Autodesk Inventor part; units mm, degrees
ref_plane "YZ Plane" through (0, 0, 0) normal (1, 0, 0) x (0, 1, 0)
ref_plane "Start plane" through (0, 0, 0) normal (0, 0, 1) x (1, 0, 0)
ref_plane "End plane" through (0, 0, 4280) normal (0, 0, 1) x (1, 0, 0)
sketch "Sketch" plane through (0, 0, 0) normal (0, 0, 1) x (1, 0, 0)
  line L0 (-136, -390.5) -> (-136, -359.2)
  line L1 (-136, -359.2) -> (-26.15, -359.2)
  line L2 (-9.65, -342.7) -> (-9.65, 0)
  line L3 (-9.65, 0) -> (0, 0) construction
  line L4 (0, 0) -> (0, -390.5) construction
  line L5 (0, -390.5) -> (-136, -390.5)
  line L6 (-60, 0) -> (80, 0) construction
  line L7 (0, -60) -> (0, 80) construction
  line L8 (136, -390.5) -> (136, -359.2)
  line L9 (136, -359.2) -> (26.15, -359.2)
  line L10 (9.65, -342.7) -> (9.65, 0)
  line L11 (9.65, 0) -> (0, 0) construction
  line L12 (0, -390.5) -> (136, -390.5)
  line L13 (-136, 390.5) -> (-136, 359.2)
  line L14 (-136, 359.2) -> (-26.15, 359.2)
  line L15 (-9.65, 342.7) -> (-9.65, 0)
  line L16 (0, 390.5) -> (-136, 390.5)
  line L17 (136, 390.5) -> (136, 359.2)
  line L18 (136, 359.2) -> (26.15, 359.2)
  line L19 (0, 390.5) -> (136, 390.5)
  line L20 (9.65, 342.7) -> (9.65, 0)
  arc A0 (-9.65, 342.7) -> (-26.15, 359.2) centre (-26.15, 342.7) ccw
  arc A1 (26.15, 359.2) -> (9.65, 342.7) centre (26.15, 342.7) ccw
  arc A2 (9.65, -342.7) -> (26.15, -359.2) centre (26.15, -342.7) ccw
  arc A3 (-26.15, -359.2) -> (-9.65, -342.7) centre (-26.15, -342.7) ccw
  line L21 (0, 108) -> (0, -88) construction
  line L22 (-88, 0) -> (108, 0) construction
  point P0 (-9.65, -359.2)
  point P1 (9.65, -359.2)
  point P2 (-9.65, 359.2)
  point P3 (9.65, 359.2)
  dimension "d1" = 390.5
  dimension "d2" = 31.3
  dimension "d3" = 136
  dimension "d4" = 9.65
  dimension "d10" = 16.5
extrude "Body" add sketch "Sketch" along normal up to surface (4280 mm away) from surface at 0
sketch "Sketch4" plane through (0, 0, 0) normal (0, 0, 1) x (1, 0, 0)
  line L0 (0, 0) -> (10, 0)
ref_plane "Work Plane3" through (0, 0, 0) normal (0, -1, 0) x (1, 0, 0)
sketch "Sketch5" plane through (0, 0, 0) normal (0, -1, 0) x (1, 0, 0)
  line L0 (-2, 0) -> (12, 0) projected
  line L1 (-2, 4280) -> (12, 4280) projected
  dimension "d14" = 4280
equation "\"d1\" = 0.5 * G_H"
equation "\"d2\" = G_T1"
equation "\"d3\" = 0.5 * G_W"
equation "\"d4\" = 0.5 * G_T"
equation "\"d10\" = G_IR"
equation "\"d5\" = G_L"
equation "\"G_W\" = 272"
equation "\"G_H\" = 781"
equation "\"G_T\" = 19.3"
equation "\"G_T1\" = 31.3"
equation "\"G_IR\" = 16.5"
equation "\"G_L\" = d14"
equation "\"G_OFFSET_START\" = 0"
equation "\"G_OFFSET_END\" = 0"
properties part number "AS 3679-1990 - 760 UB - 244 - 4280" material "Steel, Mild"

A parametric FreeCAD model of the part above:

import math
import FreeCAD as App
import Part
import Sketcher
from FreeCAD import Vector

doc = App.newDocument("Part")
params = doc.addObject("Spreadsheet::Sheet", "Params")
for row, (alias, value) in enumerate([
    ("sketch1_radius", "16.5 mm"),
    ("sketch1_height", "31.3 mm"),
    ("pad1_length", "4280 mm"),
], start=1):
    params.set(f"A{row}", alias)
    params.set(f"B{row}", "=" + value)
    params.setAlias(f"B{row}", alias)

body = doc.addObject("PartDesign::Body", "Body")

sketch1 = doc.addObject("Sketcher::SketchObject", "Sketch")
body.addObject(sketch1)
sketch1.AttachmentSupport = (doc.XY_Plane, [""])
sketch1.MapMode = "FlatFace"
sketch1.addGeometry([
    Part.LineSegment(Vector(-136, -359, 0), Vector(-136, -390, 0)),
    Part.LineSegment(Vector(-136, -390, 0), Vector(136, -390, 0)),
    Part.LineSegment(Vector(136, -390, 0), Vector(136, -359, 0)),
    Part.LineSegment(Vector(136, -359, 0), Vector(26, -359, 0)),
    Part.ArcOfCircle(Part.Circle(Vector(26, -343, 0), Vector(0, 0, 1), 16), math.radians(180), math.radians(270)),
    Part.LineSegment(Vector(10, -343, 0), Vector(10, 343, 0)),
    Part.ArcOfCircle(Part.Circle(Vector(26, 343, 0), Vector(0, 0, 1), 16), math.radians(90), math.radians(180)),
    Part.LineSegment(Vector(26, 359, 0), Vector(136, 359, 0)),
    Part.LineSegment(Vector(136, 359, 0), Vector(136, 390, 0)),
    Part.LineSegment(Vector(136, 390, 0), Vector(-136, 390, 0)),
    Part.LineSegment(Vector(-136, 390, 0), Vector(-136, 359, 0)),
    Part.LineSegment(Vector(-136, 359, 0), Vector(-26, 359, 0)),
    Part.ArcOfCircle(Part.Circle(Vector(-26, 343, 0), Vector(0, 0, 1), 16), math.radians(0), math.radians(90)),
    Part.LineSegment(Vector(-10, 343, 0), Vector(-10, -343, 0)),
    Part.ArcOfCircle(Part.Circle(Vector(-26, -343, 0), Vector(0, 0, 1), 16), math.radians(-90), math.radians(0)),
    Part.LineSegment(Vector(-26, -359, 0), Vector(-136, -359, 0)),
], False)
sketch1.addConstraint([
    Sketcher.Constraint("Coincident", 0, 2, 1, 1),
    Sketcher.Constraint("Coincident", 1, 2, 2, 1),
    Sketcher.Constraint("Coincident", 2, 2, 3, 1),
    Sketcher.Constraint("Tangent", 3, 2, 4, 2),
    Sketcher.Constraint("Tangent", 4, 1, 5, 1),
    Sketcher.Constraint("Tangent", 5, 2, 6, 2),
    Sketcher.Constraint("Tangent", 6, 1, 7, 1),
    Sketcher.Constraint("Coincident", 7, 2, 8, 1),
    Sketcher.Constraint("Coincident", 8, 2, 9, 1),
    Sketcher.Constraint("Coincident", 9, 2, 10, 1),
    Sketcher.Constraint("Coincident", 10, 2, 11, 1),
    Sketcher.Constraint("Tangent", 11, 2, 12, 2),
    Sketcher.Constraint("Tangent", 12, 1, 13, 1),
    Sketcher.Constraint("Tangent", 13, 2, 14, 2),
    Sketcher.Constraint("Tangent", 14, 1, 15, 1),
    Sketcher.Constraint("Coincident", 15, 2, 0, 1),
    Sketcher.Constraint("Vertical", 0),
    Sketcher.Constraint("Horizontal", 1),
    Sketcher.Constraint("Vertical", 2),
    Sketcher.Constraint("Horizontal", 3),
    Sketcher.Constraint("Vertical", 5),
    Sketcher.Constraint("Horizontal", 7),
    Sketcher.Constraint("Vertical", 8),
    Sketcher.Constraint("Horizontal", 9),
    Sketcher.Constraint("Vertical", 10),
    Sketcher.Constraint("Horizontal", 11),
    Sketcher.Constraint("Vertical", 13),
    Sketcher.Constraint("Horizontal", 15),
    Sketcher.Constraint("Equal", 4, 6),
    Sketcher.Constraint("Equal", 6, 12),
    Sketcher.Constraint("Equal", 12, 14),
    Sketcher.Constraint("Symmetric", 4, 3, 12, 3, -1, 1),
    Sketcher.Constraint("Symmetric", 0, 2, 8, 2, -1, 1),
    Sketcher.Constraint("Symmetric", 7, 2, 10, 2, -2),
    Sketcher.Constraint("Symmetric", 2, 2, 15, 2, -2),
    Sketcher.Constraint("Radius", 4, 16.5),
    Sketcher.Constraint("DistanceY", 0, 2, 0, 1, 31.3),
    Sketcher.Constraint("DistanceX", 0, 2, -1, 1, 136.0),
    Sketcher.Constraint("DistanceY", 0, 2, -1, 1, 390.5),
    Sketcher.Constraint("DistanceX", -1, 1, 4, 1, 9.65),
])
sketch1.setExpression("Constraints[35]", "Params.sketch1_radius")
sketch1.setExpression("Constraints[36]", "Params.sketch1_height")
pad1 = doc.addObject("PartDesign::Pad", "Pad")
body.addObject(pad1)
pad1.Profile = sketch1
pad1.setExpression("Length", "Params.pad1_length")

doc.recompute()
